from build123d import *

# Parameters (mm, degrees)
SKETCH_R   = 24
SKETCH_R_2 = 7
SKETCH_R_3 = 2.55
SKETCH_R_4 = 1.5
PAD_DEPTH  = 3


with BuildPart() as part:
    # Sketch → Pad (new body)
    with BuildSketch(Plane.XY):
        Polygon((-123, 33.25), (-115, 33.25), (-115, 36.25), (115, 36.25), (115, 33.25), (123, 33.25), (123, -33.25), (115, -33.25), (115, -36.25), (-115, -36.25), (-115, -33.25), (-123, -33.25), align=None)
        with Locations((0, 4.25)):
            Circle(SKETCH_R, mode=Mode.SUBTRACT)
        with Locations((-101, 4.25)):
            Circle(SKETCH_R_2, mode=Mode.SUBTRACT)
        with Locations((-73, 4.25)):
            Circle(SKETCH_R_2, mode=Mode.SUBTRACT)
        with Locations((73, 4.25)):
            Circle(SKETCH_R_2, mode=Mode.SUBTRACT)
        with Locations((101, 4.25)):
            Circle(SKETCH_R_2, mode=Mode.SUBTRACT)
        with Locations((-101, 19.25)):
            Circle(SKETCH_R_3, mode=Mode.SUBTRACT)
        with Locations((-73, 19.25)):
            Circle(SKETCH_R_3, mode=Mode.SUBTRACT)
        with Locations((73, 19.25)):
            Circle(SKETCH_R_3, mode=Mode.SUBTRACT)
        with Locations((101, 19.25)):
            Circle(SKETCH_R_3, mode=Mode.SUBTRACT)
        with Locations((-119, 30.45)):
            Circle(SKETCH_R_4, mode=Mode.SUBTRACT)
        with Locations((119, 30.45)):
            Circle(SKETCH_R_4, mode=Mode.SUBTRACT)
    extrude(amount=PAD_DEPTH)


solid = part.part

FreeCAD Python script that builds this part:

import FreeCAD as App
import Part
import Sketcher

V = App.Vector


def add_polygon(sketch, points):
    """Adds a closed chain of lines whose ends are joined by coincident constraints."""
    first, n = sketch.GeometryCount, len(points)
    for a, b in zip(points, points[1:] + points[:1]):
        sketch.addGeometry(Part.LineSegment(App.Vector(*a, 0), App.Vector(*b, 0)), False)
    for i in range(n):
        sketch.addConstraint(Sketcher.Constraint("Coincident", first + i, 2, first + (i + 1) % n, 1))

doc = App.newDocument("Part")
body = doc.addObject("PartDesign::Body", "Body")

sketch1 = body.newObject("Sketcher::SketchObject", "Sketch")
sketch1.AttachmentSupport = (doc.getObject("XY_Plane"), [""])
sketch1.MapMode = "FlatFace"
add_polygon(sketch1, [(-115, 33.25), (-123, 33.25), (-123, -33.25), (-115, -33.25), (-115, -36.25), (115, -36.25), (115, -33.25), (123, -33.25), (123, 33.25), (115, 33.25), (115, 36.25), (-115, 36.25)])
sketch1.addGeometry(Part.Circle(V(101, 4.25, 0), V(0, 0, 1), 7), False)
sketch1.addGeometry(Part.Circle(V(73, 4.25, 0), V(0, 0, 1), 7), False)
sketch1.addGeometry(Part.Circle(V(0, 4.25, 0), V(0, 0, 1), 24), False)
sketch1.addGeometry(Part.Circle(V(-73, 4.25, 0), V(0, 0, 1), 7), False)
sketch1.addGeometry(Part.Circle(V(-101, 4.25, 0), V(0, 0, 1), 7), False)
sketch1.addGeometry(Part.Circle(V(101, 19.25, 0), V(0, 0, 1), 2.55), False)
sketch1.addGeometry(Part.Circle(V(73, 19.25, 0), V(0, 0, 1), 2.55), False)
sketch1.addGeometry(Part.Circle(V(119, 30.45, 0), V(0, 0, 1), 1.5), False)
sketch1.addGeometry(Part.Circle(V(-73, 19.25, 0), V(0, 0, 1), 2.55), False)
sketch1.addGeometry(Part.Circle(V(-101, 19.25, 0), V(0, 0, 1), 2.55), False)
sketch1.addGeometry(Part.Circle(V(-119, 30.45, 0), V(0, 0, 1), 1.5), False)
sketch1.addConstraint([
    Sketcher.Constraint("Horizontal", 0),
    Sketcher.Constraint("Vertical", 1),
    Sketcher.Constraint("Horizontal", 2),
    Sketcher.Constraint("Vertical", 3),
    Sketcher.Constraint("Horizontal", 4),
    Sketcher.Constraint("Vertical", 5),
    Sketcher.Constraint("Horizontal", 6),
    Sketcher.Constraint("Vertical", 7),
    Sketcher.Constraint("Horizontal", 8),
    Sketcher.Constraint("Vertical", 9),
    Sketcher.Constraint("Horizontal", 10),
    Sketcher.Constraint("Vertical", 11),
    Sketcher.Constraint("Equal", 12, 13),
    Sketcher.Constraint("Equal", 13, 15),
    Sketcher.Constraint("Equal", 15, 16),
    Sketcher.Constraint("Equal", 17, 18),
    Sketcher.Constraint("Equal", 18, 20),
    Sketcher.Constraint("Equal", 20, 21),
    Sketcher.Constraint("Equal", 19, 22),
    Sketcher.Constraint("Symmetric", 0, 2, 6, 2, -1, 1),
    Sketcher.Constraint("Symmetric", 2, 2, 8, 2, -1, 1),
    Sketcher.Constraint("Symmetric", 4, 2, 10, 2, -1, 1),
    Sketcher.Constraint("Symmetric", 13, 3, 15, 3, -2),
    Sketcher.Constraint("Symmetric", 12, 3, 16, 3, -2),
    Sketcher.Constraint("Symmetric", 18, 3, 20, 3, -2),
    Sketcher.Constraint("Symmetric", 17, 3, 21, 3, -2),
    Sketcher.Constraint("Symmetric", 19, 3, 22, 3, -2),
    Sketcher.Constraint("Symmetric", 2, 2, 5, 2, -2),
    Sketcher.Constraint("PointOnObject", 14, 3, -2),
    Sketcher.Constraint("Horizontal", 12, 3, 13, 3),
    Sketcher.Constraint("Horizontal", 13, 3, 14, 3),
    Sketcher.Constraint("Horizontal", 17, 3, 18, 3),
    Sketcher.Constraint("Vertical", 12, 3, 17, 3),
    Sketcher.Constraint("Vertical", 13, 3, 18, 3),
    Sketcher.Constraint("Diameter", 12, 14.0),
    Sketcher.Constraint("Diameter", 14, 48.0),
    Sketcher.Constraint("Diameter", 19, 3.0),
    Sketcher.Constraint("Diameter", 17, 5.1),
    Sketcher.Constraint("DistanceX", 0, 2, 0, 1, 8.0),
    Sketcher.Constraint("DistanceX", 4, 1, 4, 2, 230.0),
    Sketcher.Constraint("DistanceY", 3, 2, 3, 1, 3.0),
    Sketcher.Constraint("DistanceY", 1, 2, 1, 1, 66.5),
    Sketcher.Constraint("DistanceX", -1, 1, 12, 3, 101.0),
    Sketcher.Constraint("DistanceX", -1, 1, 13, 3, 73.0),
    Sketcher.Constraint("DistanceX", -1, 1, 19, 3, 119.0),
    Sketcher.Constraint("DistanceY", 12, 3, 17, 3, 15.0),
    Sketcher.Constraint("DistanceY", 21, 3, 0, 2, 14.0),
    Sketcher.Constraint("DistanceY", 17, 3, 19, 3, 11.2),
])
pad1 = body.newObject("PartDesign::Pad", "Pad")
pad1.Profile = sketch1
pad1.Length = 3

doc.recompute()
